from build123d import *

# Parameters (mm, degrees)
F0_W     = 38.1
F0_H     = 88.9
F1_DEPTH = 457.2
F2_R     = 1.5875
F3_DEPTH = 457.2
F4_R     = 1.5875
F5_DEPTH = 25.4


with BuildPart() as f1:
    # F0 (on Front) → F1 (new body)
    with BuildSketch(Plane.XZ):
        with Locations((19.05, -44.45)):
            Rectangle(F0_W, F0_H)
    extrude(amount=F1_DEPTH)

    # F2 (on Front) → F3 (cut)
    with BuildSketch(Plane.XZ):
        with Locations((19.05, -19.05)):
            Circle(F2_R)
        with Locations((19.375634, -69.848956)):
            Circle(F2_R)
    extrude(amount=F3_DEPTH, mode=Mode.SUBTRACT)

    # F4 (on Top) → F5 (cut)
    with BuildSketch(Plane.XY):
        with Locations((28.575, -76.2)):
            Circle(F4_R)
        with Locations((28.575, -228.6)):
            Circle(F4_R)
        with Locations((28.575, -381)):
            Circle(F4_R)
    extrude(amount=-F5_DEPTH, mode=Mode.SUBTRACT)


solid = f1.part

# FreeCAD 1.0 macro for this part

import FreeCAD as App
import Part
import Sketcher
from FreeCAD import Vector
Q = App.Units.Quantity

doc = App.newDocument("Part")
body = doc.addObject("PartDesign::Body", "Body")

# Sketch on XZ plane
sketch1 = body.newObject("Sketcher::SketchObject", "Sketch")
sketch1.AttachmentSupport = (doc.getObject("XZ_Plane"), [""])
sketch1.MapMode = "FlatFace"
sketch1.addGeometry([
    Part.LineSegment(Vector(0, 0, 0), Vector(0, -89, 0)),
    Part.LineSegment(Vector(0, -89, 0), Vector(38, -89, 0)),
    Part.LineSegment(Vector(38, -89, 0), Vector(38, 0, 0)),
    Part.LineSegment(Vector(38, 0, 0), Vector(0, 0, 0)),
], False)
sketch1.addConstraint([
    Sketcher.Constraint("Coincident", 0, 2, 1, 1),
    Sketcher.Constraint("Coincident", 1, 2, 2, 1),
    Sketcher.Constraint("Coincident", 2, 2, 3, 1),
    Sketcher.Constraint("Coincident", 3, 2, 0, 1),
    Sketcher.Constraint("Vertical", 0),
    Sketcher.Constraint("Horizontal", 1),
    Sketcher.Constraint("Vertical", 2),
    Sketcher.Constraint("Horizontal", 3),
    Sketcher.Constraint("Coincident", 3, 2, -1, 1),
    Sketcher.Constraint("DistanceX", 1, 1, 1, 2, Q("1.5 in")),
    Sketcher.Constraint("DistanceY", 0, 2, 0, 1, Q("3.5 in")),
])
pad1 = body.newObject("PartDesign::Pad", "Pad")
pad1.Profile = sketch1
pad1.Length = Q("18 in")

# Sketch on XZ plane
sketch2 = body.newObject("Sketcher::SketchObject", "Sketch001")
sketch2.AttachmentSupport = (doc.getObject("XZ_Plane"), [""])
sketch2.MapMode = "FlatFace"
sketch2.addGeometry([
    Part.Circle(Vector(19.1, -19.1, 0), Vector(0, 0, 1), 1.6),
    Part.Circle(Vector(19.4, -69.8, 0), Vector(0, 0, 1), 1.6),
], False)
sketch2.addConstraint([
    Sketcher.Constraint("Equal", 0, 1),
    Sketcher.Constraint("Diameter", 0, Q("0.125 in")),
    Sketcher.Constraint("DistanceX", -1, 1, 0, 3, Q("0.75 in")),
    Sketcher.Constraint("DistanceY", 0, 3, -1, 1, Q("0.75 in")),
    Sketcher.Constraint("DistanceX", -1, 1, 1, 3, 19.375634),
    Sketcher.Constraint("DistanceY", 1, 3, -1, 1, 69.848956),
])
pocket1 = body.newObject("PartDesign::Pocket", "Pocket")
pocket1.Profile = sketch2
pocket1.Length = Q("18 in")
pocket1.Reversed = True

# Sketch on XY plane
sketch3 = body.newObject("Sketcher::SketchObject", "Sketch002")
sketch3.AttachmentSupport = (doc.getObject("XY_Plane"), [""])
sketch3.MapMode = "FlatFace"
sketch3.addGeometry([
    Part.Circle(Vector(28.6, -76.2, 0), Vector(0, 0, 1), 1.6),
    Part.Circle(Vector(28.6, -228.6, 0), Vector(0, 0, 1), 1.6),
    Part.Circle(Vector(28.6, -381, 0), Vector(0, 0, 1), 1.6),
], False)
sketch3.addConstraint([
    Sketcher.Constraint("Equal", 0, 1),
    Sketcher.Constraint("Equal", 1, 2),
    Sketcher.Constraint("Vertical", 0, 3, 1, 3),
    Sketcher.Constraint("Vertical", 1, 3, 2, 3),
    Sketcher.Constraint("Diameter", 0, Q("0.125 in")),
    Sketcher.Constraint("DistanceY", 0, 3, -1, 1, Q("3 in")),
    Sketcher.Constraint("DistanceY", 1, 3, -1, 1, Q("9 in")),
    Sketcher.Constraint("DistanceY", 2, 3, -1, 1, Q("15 in")),
    Sketcher.Constraint("DistanceX", -1, 1, 0, 3, Q("1.125 in")),
])
pocket2 = body.newObject("PartDesign::Pocket", "Pocket001")
pocket2.Profile = sketch3
pocket2.Length = Q("1 in")

doc.recompute()
